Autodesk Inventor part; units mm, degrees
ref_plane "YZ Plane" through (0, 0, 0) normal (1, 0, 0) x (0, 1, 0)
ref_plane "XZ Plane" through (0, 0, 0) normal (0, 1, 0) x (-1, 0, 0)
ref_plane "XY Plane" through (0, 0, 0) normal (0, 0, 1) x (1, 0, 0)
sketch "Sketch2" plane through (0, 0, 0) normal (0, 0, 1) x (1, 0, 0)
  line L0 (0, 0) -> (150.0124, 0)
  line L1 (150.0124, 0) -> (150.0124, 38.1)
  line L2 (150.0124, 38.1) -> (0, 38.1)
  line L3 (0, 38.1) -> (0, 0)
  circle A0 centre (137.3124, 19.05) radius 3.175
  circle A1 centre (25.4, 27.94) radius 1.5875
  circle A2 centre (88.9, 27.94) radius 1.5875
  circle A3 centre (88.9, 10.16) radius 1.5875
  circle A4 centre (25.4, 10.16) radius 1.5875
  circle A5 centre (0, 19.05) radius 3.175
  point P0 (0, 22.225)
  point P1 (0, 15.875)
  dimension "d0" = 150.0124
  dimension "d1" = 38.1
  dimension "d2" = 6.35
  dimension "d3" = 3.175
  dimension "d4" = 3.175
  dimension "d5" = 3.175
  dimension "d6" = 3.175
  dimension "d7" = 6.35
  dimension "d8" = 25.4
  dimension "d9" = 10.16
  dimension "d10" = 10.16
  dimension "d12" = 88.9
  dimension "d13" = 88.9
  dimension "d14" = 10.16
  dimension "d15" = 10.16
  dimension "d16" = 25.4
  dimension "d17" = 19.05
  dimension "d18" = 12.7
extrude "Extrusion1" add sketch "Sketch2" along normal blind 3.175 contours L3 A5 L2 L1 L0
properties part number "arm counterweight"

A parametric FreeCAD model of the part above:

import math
import FreeCAD as App
import Part
import Sketcher
from FreeCAD import Vector
Q = App.Units.Quantity

doc = App.newDocument("Part")
body = doc.addObject("PartDesign::Body", "Body")

# Sketch on XY plane
sketch1 = doc.addObject("Sketcher::SketchObject", "Sketch")
body.addObject(sketch1)
sketch1.AttachmentSupport = (doc.XY_Plane, [""])
sketch1.MapMode = "FlatFace"
sketch1.addGeometry(Part.LineSegment(Vector(0, 15.9, 0), Vector(0, 0, 0)), False)
sketch1.addGeometry(Part.LineSegment(Vector(0, 0, 0), Vector(150, 0, 0)), False)
sketch1.addGeometry(Part.LineSegment(Vector(150, 0, 0), Vector(150, 38.1, 0)), False)
sketch1.addGeometry(Part.LineSegment(Vector(150, 38.1, 0), Vector(0, 38.1, 0)), False)
sketch1.addGeometry(Part.LineSegment(Vector(0, 38.1, 0), Vector(0, 22.2, 0)), False)
sketch1.addGeometry(Part.ArcOfCircle(Part.Circle(Vector(0, 19.1, 0), Vector(0, 0, 1), 3.2), math.radians(-90), math.radians(90)), False)
sketch1.addGeometry(Part.Circle(Vector(25.4, 10.2, 0), Vector(0, 0, 1), 1.6), False)
sketch1.addGeometry(Part.Circle(Vector(88.9, 10.2, 0), Vector(0, 0, 1), 1.6), False)
sketch1.addGeometry(Part.Circle(Vector(25.4, 27.9, 0), Vector(0, 0, 1), 1.6), False)
sketch1.addGeometry(Part.Circle(Vector(88.9, 27.9, 0), Vector(0, 0, 1), 1.6), False)
sketch1.addGeometry(Part.Circle(Vector(137.3, 19.1, 0), Vector(0, 0, 1), 3.2), False)
sketch1.addConstraint(Sketcher.Constraint("Coincident", 0, 2, 1, 1))
sketch1.addConstraint(Sketcher.Constraint("Coincident", 1, 2, 2, 1))
sketch1.addConstraint(Sketcher.Constraint("Coincident", 2, 2, 3, 1))
sketch1.addConstraint(Sketcher.Constraint("Coincident", 3, 2, 4, 1))
sketch1.addConstraint(Sketcher.Constraint("Coincident", 4, 2, 5, 2))
sketch1.addConstraint(Sketcher.Constraint("Coincident", 5, 1, 0, 1))
sketch1.addConstraint(Sketcher.Constraint("Vertical", 0))
sketch1.addConstraint(Sketcher.Constraint("Horizontal", 1))
sketch1.addConstraint(Sketcher.Constraint("Vertical", 2))
sketch1.addConstraint(Sketcher.Constraint("Horizontal", 3))
sketch1.addConstraint(Sketcher.Constraint("Vertical", 4))
sketch1.addConstraint(Sketcher.Constraint("Coincident", 0, 2, -1, 1))
sketch1.addConstraint(Sketcher.Constraint("Equal", 6, 7))
sketch1.addConstraint(Sketcher.Constraint("Equal", 7, 8))
sketch1.addConstraint(Sketcher.Constraint("Equal", 8, 9))
sketch1.addConstraint(Sketcher.Constraint("Equal", 5, 10))
sketch1.addConstraint(Sketcher.Constraint("PointOnObject", 5, 3, -2))
sketch1.addConstraint(Sketcher.Constraint("PointOnObject", 3, 2, -2))
sketch1.addConstraint(Sketcher.Constraint("Horizontal", 6, 3, 7, 3))
sketch1.addConstraint(Sketcher.Constraint("Horizontal", 8, 3, 9, 3))
sketch1.addConstraint(Sketcher.Constraint("Horizontal", 5, 3, 10, 3))
sketch1.addConstraint(Sketcher.Constraint("Vertical", 6, 3, 8, 3))
sketch1.addConstraint(Sketcher.Constraint("Vertical", 7, 3, 9, 3))
sketch1.addConstraint(Sketcher.Constraint("Equal", 0, 4))
sketch1.addConstraint(Sketcher.Constraint("Diameter", 10, Q("0.25 in")))
sketch1.addConstraint(Sketcher.Constraint("Diameter", 6, Q("0.125 in")))
sketch1.addConstraint(Sketcher.Constraint("DistanceY", 2, 1, 2, 2, Q("1.5 in")))
sketch1.addConstraint(Sketcher.Constraint("DistanceX", -1, 1, 6, 3, Q("1 in")))
sketch1.addConstraint(Sketcher.Constraint("DistanceY", -1, 1, 6, 3, Q("0.4 in")))
sketch1.addConstraint(Sketcher.Constraint("DistanceX", -1, 1, 7, 3, Q("3.5 in")))
sketch1.addConstraint(Sketcher.Constraint("DistanceX", 10, 3, 1, 2, Q("0.5 in")))
sketch1.addConstraint(Sketcher.Constraint("DistanceY", 9, 3, 2, 2, Q("0.4 in")))
sketch1.addConstraint(Sketcher.Constraint("DistanceX", 1, 1, 1, 2, Q("5.906 in")))
pad1 = doc.addObject("PartDesign::Pad", "Pad")
body.addObject(pad1)
pad1.Profile = sketch1
pad1.Length = Q("0.125 in")

doc.recompute()
